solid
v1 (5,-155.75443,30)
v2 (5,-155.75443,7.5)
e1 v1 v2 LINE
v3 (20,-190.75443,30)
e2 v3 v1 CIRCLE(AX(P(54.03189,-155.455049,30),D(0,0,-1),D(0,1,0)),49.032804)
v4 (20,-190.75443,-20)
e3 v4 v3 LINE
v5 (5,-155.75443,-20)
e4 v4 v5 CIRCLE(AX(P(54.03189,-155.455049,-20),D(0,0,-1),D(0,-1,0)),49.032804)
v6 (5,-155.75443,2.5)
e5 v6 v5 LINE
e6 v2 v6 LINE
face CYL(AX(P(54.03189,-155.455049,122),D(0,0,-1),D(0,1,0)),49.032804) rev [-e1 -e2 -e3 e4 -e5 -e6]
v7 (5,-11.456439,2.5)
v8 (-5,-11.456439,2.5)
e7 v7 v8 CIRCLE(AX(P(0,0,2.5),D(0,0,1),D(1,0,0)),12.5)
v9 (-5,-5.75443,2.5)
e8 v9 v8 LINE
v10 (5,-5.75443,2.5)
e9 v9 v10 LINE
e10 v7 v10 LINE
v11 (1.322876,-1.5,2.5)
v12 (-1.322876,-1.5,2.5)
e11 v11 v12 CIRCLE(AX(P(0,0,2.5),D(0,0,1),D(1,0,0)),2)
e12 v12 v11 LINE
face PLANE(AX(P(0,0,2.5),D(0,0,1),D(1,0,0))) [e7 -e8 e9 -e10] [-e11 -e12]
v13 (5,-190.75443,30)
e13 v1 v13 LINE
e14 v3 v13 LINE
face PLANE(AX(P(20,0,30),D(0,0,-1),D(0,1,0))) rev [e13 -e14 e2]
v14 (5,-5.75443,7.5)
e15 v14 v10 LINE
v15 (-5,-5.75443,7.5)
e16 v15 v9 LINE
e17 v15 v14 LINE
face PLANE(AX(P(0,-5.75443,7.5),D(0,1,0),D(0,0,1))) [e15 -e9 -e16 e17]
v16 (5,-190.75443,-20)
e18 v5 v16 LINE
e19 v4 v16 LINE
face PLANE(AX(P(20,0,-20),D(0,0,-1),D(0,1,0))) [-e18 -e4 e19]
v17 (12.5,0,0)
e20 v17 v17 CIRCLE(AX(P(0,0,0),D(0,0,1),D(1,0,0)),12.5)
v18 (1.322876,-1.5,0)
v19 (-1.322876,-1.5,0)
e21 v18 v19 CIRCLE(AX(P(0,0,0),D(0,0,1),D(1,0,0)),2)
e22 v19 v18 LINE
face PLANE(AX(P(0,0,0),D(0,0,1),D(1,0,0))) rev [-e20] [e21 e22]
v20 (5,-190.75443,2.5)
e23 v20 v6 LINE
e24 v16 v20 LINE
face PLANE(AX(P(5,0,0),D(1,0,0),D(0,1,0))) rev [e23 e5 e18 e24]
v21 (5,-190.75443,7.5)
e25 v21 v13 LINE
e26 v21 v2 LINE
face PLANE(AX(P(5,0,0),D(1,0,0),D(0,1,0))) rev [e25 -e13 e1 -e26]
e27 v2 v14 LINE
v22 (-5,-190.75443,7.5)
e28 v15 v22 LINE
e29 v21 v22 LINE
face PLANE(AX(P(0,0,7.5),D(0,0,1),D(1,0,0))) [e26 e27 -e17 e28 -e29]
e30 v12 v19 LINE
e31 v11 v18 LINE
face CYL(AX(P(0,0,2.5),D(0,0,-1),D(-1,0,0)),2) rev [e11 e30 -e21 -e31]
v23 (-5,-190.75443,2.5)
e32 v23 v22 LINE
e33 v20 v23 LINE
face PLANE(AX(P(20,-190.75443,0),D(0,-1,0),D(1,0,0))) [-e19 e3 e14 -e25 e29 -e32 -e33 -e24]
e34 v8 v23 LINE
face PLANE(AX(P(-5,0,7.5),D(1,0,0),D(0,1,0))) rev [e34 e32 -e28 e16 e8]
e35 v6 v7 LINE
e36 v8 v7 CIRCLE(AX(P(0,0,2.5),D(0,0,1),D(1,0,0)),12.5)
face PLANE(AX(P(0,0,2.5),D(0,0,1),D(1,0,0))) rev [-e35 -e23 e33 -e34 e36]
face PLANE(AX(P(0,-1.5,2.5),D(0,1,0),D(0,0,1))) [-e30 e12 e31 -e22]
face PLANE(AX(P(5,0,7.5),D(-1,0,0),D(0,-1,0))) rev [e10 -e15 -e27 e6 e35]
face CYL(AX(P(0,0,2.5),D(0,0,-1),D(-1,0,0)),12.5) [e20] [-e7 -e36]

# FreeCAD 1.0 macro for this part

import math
import FreeCAD as App
import Part
import Sketcher

V = App.Vector

doc = App.newDocument("Part")
body = doc.addObject("PartDesign::Body", "Body")

sketch1 = body.newObject("Sketcher::SketchObject", "Sketch")
sketch1.AttachmentSupport = (doc.getObject("XY_Plane"), [""])
sketch1.MapMode = "FlatFace"
sketch1.addGeometry(Part.Circle(V(0, 0, 0), V(0, 0, 1), 12.5), False)
sketch1.addGeometry(Part.ArcOfCircle(Part.Circle(V(0, 0, 0), V(0, 0, 1), 2), math.radians(-49), math.radians(229)), False)
sketch1.addGeometry(Part.LineSegment(V(1.3, -1.5, 0), V(-1.3, -1.5, 0)), False)
sketch1.addConstraint(Sketcher.Constraint("Coincident", 1, 1, 2, 1))
sketch1.addConstraint(Sketcher.Constraint("Coincident", 2, 2, 1, 2))
sketch1.addConstraint(Sketcher.Constraint("Horizontal", 2))
sketch1.addConstraint(Sketcher.Constraint("Coincident", 0, 3, -1, 1))
sketch1.addConstraint(Sketcher.Constraint("Coincident", 1, 3, -1, 1))
sketch1.addConstraint(Sketcher.Constraint("Diameter", 0, 25.0))
sketch1.addConstraint(Sketcher.Constraint("Radius", 1, 2.0))
sketch1.addConstraint(Sketcher.Constraint("DistanceY", 1, 1, -1, 1, 1.5))
pad1 = body.newObject("PartDesign::Pad", "Pad")
pad1.Profile = sketch1
pad1.Length = 2.5

sketch2 = body.newObject("Sketcher::SketchObject", "Sketch001")
sketch2.AttachmentSupport = (doc.getObject("XY_Plane"), [""])
sketch2.MapMode = "FlatFace"
sketch2.AttachmentOffset = App.Placement(V(0, 0, 2.5), App.Rotation())
sketch2.addGeometry(Part.LineSegment(V(-5, -166, 0), V(5, -166, 0)), False)
sketch2.addGeometry(Part.LineSegment(V(5, -166, 0), V(5, -6, 0)), False)
sketch2.addGeometry(Part.LineSegment(V(5, -6, 0), V(-5, -6, 0)), False)
sketch2.addGeometry(Part.LineSegment(V(-5, -6, 0), V(-5, -166, 0)), False)
sketch2.addConstraint(Sketcher.Constraint("Coincident", 0, 2, 1, 1))
sketch2.addConstraint(Sketcher.Constraint("Coincident", 1, 2, 2, 1))
sketch2.addConstraint(Sketcher.Constraint("Coincident", 2, 2, 3, 1))
sketch2.addConstraint(Sketcher.Constraint("Coincident", 3, 2, 0, 1))
sketch2.addConstraint(Sketcher.Constraint("Horizontal", 0))
sketch2.addConstraint(Sketcher.Constraint("Vertical", 1))
sketch2.addConstraint(Sketcher.Constraint("Horizontal", 2))
sketch2.addConstraint(Sketcher.Constraint("Vertical", 3))
sketch2.addConstraint(Sketcher.Constraint("DistanceX", 0, 1, 0, 2, 10.0))
sketch2.addConstraint(Sketcher.Constraint("DistanceY", 1, 1, 1, 2, 160.0))
sketch2.addConstraint(Sketcher.Constraint("DistanceX", -1, 1, 0, 2, 5.0))
sketch2.addConstraint(Sketcher.Constraint("DistanceY", 0, 2, -1, 1, 165.75443))
pad2 = body.newObject("PartDesign::Pad", "Pad001")
pad2.Profile = sketch2
pad2.Length = 5

sketch3 = body.newObject("Sketcher::SketchObject", "Sketch002")
sketch3.AttachmentSupport = (doc.getObject("YZ_Plane"), [""])
sketch3.MapMode = "FlatFace"
sketch3.AttachmentOffset = App.Placement(V(0, 0, 5), App.Rotation())
sketch3.addGeometry(Part.LineSegment(V(-156, -20, 0), V(-156, 30, 0)), False)
sketch3.addGeometry(Part.LineSegment(V(-156, 30, 0), V(-191, 30, 0)), False)
sketch3.addGeometry(Part.LineSegment(V(-191, 30, 0), V(-191, -20, 0)), False)
sketch3.addGeometry(Part.LineSegment(V(-191, -20, 0), V(-156, -20, 0)), False)
sketch3.addConstraint(Sketcher.Constraint("Coincident", 0, 2, 1, 1))
sketch3.addConstraint(Sketcher.Constraint("Coincident", 1, 2, 2, 1))
sketch3.addConstraint(Sketcher.Constraint("Coincident", 2, 2, 3, 1))
sketch3.addConstraint(Sketcher.Constraint("Coincident", 3, 2, 0, 1))
sketch3.addConstraint(Sketcher.Constraint("Vertical", 0))
sketch3.addConstraint(Sketcher.Constraint("Horizontal", 1))
sketch3.addConstraint(Sketcher.Constraint("Vertical", 2))
sketch3.addConstraint(Sketcher.Constraint("Horizontal", 3))
sketch3.addConstraint(Sketcher.Constraint("DistanceX", 1, 2, 1, 1, 35.0))
sketch3.addConstraint(Sketcher.Constraint("DistanceY", 0, 1, 0, 2, 50.0))
sketch3.addConstraint(Sketcher.Constraint("DistanceY", -1, 1, 0, 2, 30.0))
sketch3.addConstraint(Sketcher.Constraint("DistanceX", 0, 2, -1, 1, 155.75443))
pad3 = body.newObject("PartDesign::Pad", "Pad002")
pad3.Profile = sketch3
pad3.Length = 15

sketch4 = body.newObject("Sketcher::SketchObject", "Sketch003")
sketch4.AttachmentSupport = (doc.getObject("YZ_Plane"), [""])
sketch4.MapMode = "FlatFace"
sketch4.AttachmentOffset = App.Placement(V(0, 0, -5), App.Rotation())
sketch4.addGeometry(Part.LineSegment(V(-166, 2, 0), V(-191, 2, 0)), False)
sketch4.addGeometry(Part.LineSegment(V(-191, 2, 0), V(-191, 8, 0)), False)
sketch4.addGeometry(Part.LineSegment(V(-191, 8, 0), V(-166, 8, 0)), False)
sketch4.addGeometry(Part.LineSegment(V(-166, 8, 0), V(-166, 2, 0)), False)
sketch4.addConstraint(Sketcher.Constraint("Coincident", 0, 2, 1, 1))
sketch4.addConstraint(Sketcher.Constraint("Coincident", 1, 2, 2, 1))
sketch4.addConstraint(Sketcher.Constraint("Coincident", 2, 2, 3, 1))
sketch4.addConstraint(Sketcher.Constraint("Coincident", 3, 2, 0, 1))
sketch4.addConstraint(Sketcher.Constraint("Horizontal", 0))
sketch4.addConstraint(Sketcher.Constraint("Vertical", 1))
sketch4.addConstraint(Sketcher.Constraint("Horizontal", 2))
sketch4.addConstraint(Sketcher.Constraint("Vertical", 3))
sketch4.addConstraint(Sketcher.Constraint("DistanceX", 0, 2, 0, 1, 25.0))
sketch4.addConstraint(Sketcher.Constraint("DistanceY", 1, 1, 1, 2, 5.0))
sketch4.addConstraint(Sketcher.Constraint("DistanceY", -1, 1, 0, 2, 2.5))
sketch4.addConstraint(Sketcher.Constraint("DistanceX", 0, 2, -1, 1, 190.75443))
pad4 = body.newObject("PartDesign::Pad", "Pad003")
pad4.Profile = sketch4
pad4.Length = 10

sketch5 = body.newObject("Sketcher::SketchObject", "Sketch004")
sketch5.AttachmentSupport = (doc.getObject("XY_Plane"), [""])
sketch5.MapMode = "FlatFace"
sketch5.AttachmentOffset = App.Placement(V(0, 0, -20), App.Rotation())
sketch5.addGeometry(Part.LineSegment(V(5, -156, 0), V(20, -156, 0)), False)
sketch5.addGeometry(Part.LineSegment(V(20, -156, 0), V(20, -191, 0)), False)
sketch5.addGeometry(Part.ArcOfCircle(Part.Circle(V(54, -155, 0), V(0, 0, 1), 49), math.radians(-180), math.radians(-134)), False)
sketch5.addConstraint(Sketcher.Constraint("Coincident", 0, 2, 1, 1))
sketch5.addConstraint(Sketcher.Constraint("Coincident", 1, 2, 2, 2))
sketch5.addConstraint(Sketcher.Constraint("Coincident", 2, 1, 0, 1))
sketch5.addConstraint(Sketcher.Constraint("Horizontal", 0))
sketch5.addConstraint(Sketcher.Constraint("Vertical", 1))
sketch5.addConstraint(Sketcher.Constraint("DistanceX", 0, 1, 0, 2, 15.0))
sketch5.addConstraint(Sketcher.Constraint("DistanceY", 1, 2, 1, 1, 35.0))
sketch5.addConstraint(Sketcher.Constraint("DistanceX", -1, 1, 0, 2, 20.0))
sketch5.addConstraint(Sketcher.Constraint("Radius", 2, 49.032804))
sketch5.addConstraint(Sketcher.Constraint("DistanceY", 2, 3, -1, 1, 155.455049))
pocket1 = body.newObject("PartDesign::Pocket", "Pocket")
pocket1.Profile = sketch5
pocket1.Length = 142
pocket1.Reversed = True

doc.recompute()
